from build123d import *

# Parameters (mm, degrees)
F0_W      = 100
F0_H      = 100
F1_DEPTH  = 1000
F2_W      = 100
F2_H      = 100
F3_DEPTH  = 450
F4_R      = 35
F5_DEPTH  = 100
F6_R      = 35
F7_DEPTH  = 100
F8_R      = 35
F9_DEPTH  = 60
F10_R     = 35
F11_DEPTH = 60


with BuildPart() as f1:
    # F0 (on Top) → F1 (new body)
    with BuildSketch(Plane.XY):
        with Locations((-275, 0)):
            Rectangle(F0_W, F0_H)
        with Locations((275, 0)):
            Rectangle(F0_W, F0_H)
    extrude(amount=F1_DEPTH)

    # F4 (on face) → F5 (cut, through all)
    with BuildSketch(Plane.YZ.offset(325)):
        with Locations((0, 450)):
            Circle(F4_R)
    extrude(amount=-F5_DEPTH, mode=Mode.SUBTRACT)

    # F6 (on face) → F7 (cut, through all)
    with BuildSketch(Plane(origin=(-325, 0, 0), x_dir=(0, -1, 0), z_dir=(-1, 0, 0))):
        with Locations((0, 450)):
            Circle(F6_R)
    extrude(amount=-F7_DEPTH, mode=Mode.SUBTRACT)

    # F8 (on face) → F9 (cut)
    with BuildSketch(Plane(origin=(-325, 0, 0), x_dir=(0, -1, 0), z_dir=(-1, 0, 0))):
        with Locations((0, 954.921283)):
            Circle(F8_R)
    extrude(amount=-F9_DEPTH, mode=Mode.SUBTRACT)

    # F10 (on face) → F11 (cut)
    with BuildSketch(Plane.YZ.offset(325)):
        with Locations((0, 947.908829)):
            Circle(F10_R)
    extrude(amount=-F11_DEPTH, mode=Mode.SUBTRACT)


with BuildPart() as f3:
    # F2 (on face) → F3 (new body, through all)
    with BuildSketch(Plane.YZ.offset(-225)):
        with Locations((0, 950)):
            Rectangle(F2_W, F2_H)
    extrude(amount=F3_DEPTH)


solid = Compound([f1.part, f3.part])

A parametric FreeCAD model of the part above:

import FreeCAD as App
import Part
import Sketcher
Q = App.Units.Quantity


def add_polygon(sketch, points):
    """Adds a closed chain of lines whose ends are joined by coincident constraints."""
    first, n = sketch.GeometryCount, len(points)
    for a, b in zip(points, points[1:] + points[:1]):
        sketch.addGeometry(Part.LineSegment(App.Vector(*a, 0), App.Vector(*b, 0)), False)
    for i in range(n):
        sketch.addConstraint(Sketcher.Constraint("Coincident", first + i, 2, first + (i + 1) % n, 1))

doc = App.newDocument("Part")
params = doc.addObject("Spreadsheet::Sheet", "Params")
for row, (alias, value) in enumerate([
    ("sketch1_width", "100 mm"),
    ("pad1_length", "1000 mm"),
    ("sketch2_diameter", "70 mm"),
    ("pocket1_length", "100 mm"),
    ("sketch3_diameter", "70 mm"),
    ("sketch4_diameter", "70 mm"),
    ("pocket3_length", "60 mm"),
    ("sketch5_diameter", "70 mm"),
    ("pocket4_length", "60 mm"),
    ("sketch6_width", "100 mm"),
    ("pad2_length", "450 mm"),
], start=1):
    params.set(f"A{row}", alias)
    params.set(f"B{row}", "=" + value)
    params.setAlias(f"B{row}", alias)

body = doc.addObject("PartDesign::Body", "Body")
body.AllowCompound = True

# Sketch on XY plane
sketch1 = body.newObject("Sketcher::SketchObject", "Sketch")
sketch1.AttachmentSupport = (doc.getObject("XY_Plane"), [""])
sketch1.MapMode = "FlatFace"
add_polygon(sketch1, [(-325, 50), (-325, -50), (-225, -50), (-225, 50)])  # lines 0-3
add_polygon(sketch1, [(225, 50), (225, -50), (325, -50), (325, 50)])  # lines 4-7
sketch1.addConstraint(Sketcher.Constraint("Vertical", 0))
sketch1.addConstraint(Sketcher.Constraint("Horizontal", 1))
sketch1.addConstraint(Sketcher.Constraint("Vertical", 2))
sketch1.addConstraint(Sketcher.Constraint("Horizontal", 3))
sketch1.addConstraint(Sketcher.Constraint("Vertical", 4))
sketch1.addConstraint(Sketcher.Constraint("Horizontal", 5))
sketch1.addConstraint(Sketcher.Constraint("Vertical", 6))
sketch1.addConstraint(Sketcher.Constraint("Horizontal", 7))
sketch1.addConstraint(Sketcher.Constraint("Symmetric", 2, 2, 4, 2, -1, 1))
sketch1.addConstraint(Sketcher.Constraint("Symmetric", 0, 2, 6, 2, -1, 1))
sketch1.addConstraint(Sketcher.Constraint("Horizontal", 1, 2, 4, 2))
sketch1.addConstraint(Sketcher.Constraint("Equal", 7, 0))
sketch1.addConstraint(Sketcher.Constraint("DistanceX", 1, 1, 1, 2, Q("100 mm")))
sketch1.addConstraint(Sketcher.Constraint("DistanceX", 0, 2, -1, 1, Q("325 mm")))
sketch1.setExpression("Constraints[20]", "Params.sketch1_width")
pad1 = body.newObject("PartDesign::Pad", "Pad")
pad1.Profile = sketch1
pad1.setExpression("Length", "Params.pad1_length")

# Sketch on YZ plane
sketch2 = body.newObject("Sketcher::SketchObject", "Sketch001")
sketch2.AttachmentSupport = (doc.getObject("YZ_Plane"), [""])
sketch2.MapMode = "FlatFace"
sketch2.AttachmentOffset = App.Placement(App.Vector(0, 0, 325), App.Rotation())
sketch2.addGeometry(Part.Circle(App.Vector(0, 450, 0), App.Vector(0, 0, 1), 35), False)
sketch2.addConstraint(Sketcher.Constraint("PointOnObject", 0, 3, -2))
sketch2.addConstraint(Sketcher.Constraint("Diameter", 0, Q("70 mm")))
sketch2.addConstraint(Sketcher.Constraint("DistanceY", -1, 1, 0, 3, Q("450 mm")))
sketch2.setExpression("Constraints[1]", "Params.sketch2_diameter")
pocket1 = body.newObject("PartDesign::Pocket", "Pocket")
pocket1.Profile = sketch2
pocket1.setExpression("Length", "Params.pocket1_length")

# Sketch on YZ plane
sketch3 = body.newObject("Sketcher::SketchObject", "Sketch002")
sketch3.AttachmentSupport = (doc.getObject("YZ_Plane"), [""])
sketch3.MapMode = "FlatFace"
sketch3.AttachmentOffset = App.Placement(App.Vector(0, 0, -325), App.Rotation())
sketch3.addGeometry(Part.Circle(App.Vector(0, 450, 0), App.Vector(0, 0, 1), 35), False)
sketch3.addConstraint(Sketcher.Constraint("PointOnObject", 0, 3, -2))
sketch3.addConstraint(Sketcher.Constraint("Diameter", 0, Q("70 mm")))
sketch3.addConstraint(Sketcher.Constraint("DistanceY", -1, 1, 0, 3, Q("450 mm")))
sketch3.setExpression("Constraints[1]", "Params.sketch3_diameter")
pocket2 = body.newObject("PartDesign::Pocket", "Pocket001")
pocket2.Profile = sketch3
pocket2.Type = "ThroughAll"
pocket2.Reversed = True

# Sketch on YZ plane
sketch4 = body.newObject("Sketcher::SketchObject", "Sketch003")
sketch4.AttachmentSupport = (doc.getObject("YZ_Plane"), [""])
sketch4.MapMode = "FlatFace"
sketch4.AttachmentOffset = App.Placement(App.Vector(0, 0, -325), App.Rotation())
sketch4.addGeometry(Part.Circle(App.Vector(0, 955, 0), App.Vector(0, 0, 1), 35), False)
sketch4.addConstraint(Sketcher.Constraint("PointOnObject", 0, 3, -2))
sketch4.addConstraint(Sketcher.Constraint("Diameter", 0, Q("70 mm")))
sketch4.addConstraint(Sketcher.Constraint("DistanceY", -1, 1, 0, 3, Q("954.921283 mm")))
sketch4.setExpression("Constraints[1]", "Params.sketch4_diameter")
pocket3 = body.newObject("PartDesign::Pocket", "Pocket002")
pocket3.Profile = sketch4
pocket3.setExpression("Length", "Params.pocket3_length")
pocket3.Reversed = True

# Sketch on YZ plane
sketch5 = body.newObject("Sketcher::SketchObject", "Sketch004")
sketch5.AttachmentSupport = (doc.getObject("YZ_Plane"), [""])
sketch5.MapMode = "FlatFace"
sketch5.AttachmentOffset = App.Placement(App.Vector(0, 0, 325), App.Rotation())
sketch5.addGeometry(Part.Circle(App.Vector(0, 948, 0), App.Vector(0, 0, 1), 35), False)
sketch5.addConstraint(Sketcher.Constraint("PointOnObject", 0, 3, -2))
sketch5.addConstraint(Sketcher.Constraint("Diameter", 0, Q("70 mm")))
sketch5.addConstraint(Sketcher.Constraint("DistanceY", -1, 1, 0, 3, Q("947.908829 mm")))
sketch5.setExpression("Constraints[1]", "Params.sketch5_diameter")
pocket4 = body.newObject("PartDesign::Pocket", "Pocket003")
pocket4.Profile = sketch5
pocket4.setExpression("Length", "Params.pocket4_length")
body2 = doc.addObject("PartDesign::Body", "Body001")

# Sketch on YZ plane
sketch6 = body2.newObject("Sketcher::SketchObject", "Sketch005")
sketch6.AttachmentSupport = (doc.getObject("YZ_Plane001"), [""])
sketch6.MapMode = "FlatFace"
sketch6.AttachmentOffset = App.Placement(App.Vector(0, 0, -225), App.Rotation())
add_polygon(sketch6, [(-50, 1000), (-50, 900), (50, 900), (50, 1000)])  # lines 0-3
sketch6.addConstraint(Sketcher.Constraint("Vertical", 0))
sketch6.addConstraint(Sketcher.Constraint("Horizontal", 1))
sketch6.addConstraint(Sketcher.Constraint("Vertical", 2))
sketch6.addConstraint(Sketcher.Constraint("Horizontal", 3))
sketch6.addConstraint(Sketcher.Constraint("Equal", 3, 0))
sketch6.addConstraint(Sketcher.Constraint("DistanceX", 1, 1, 1, 2, Q("100 mm")))
sketch6.addConstraint(Sketcher.Constraint("DistanceX", 0, 2, -1, 1, Q("50 mm")))
sketch6.addConstraint(Sketcher.Constraint("DistanceY", -1, 1, 0, 2, Q("900 mm")))
sketch6.setExpression("Constraints[9]", "Params.sketch6_width")
pad2 = body2.newObject("PartDesign::Pad", "Pad001")
pad2.Profile = sketch6
pad2.setExpression("Length", "Params.pad2_length")

doc.recompute()
